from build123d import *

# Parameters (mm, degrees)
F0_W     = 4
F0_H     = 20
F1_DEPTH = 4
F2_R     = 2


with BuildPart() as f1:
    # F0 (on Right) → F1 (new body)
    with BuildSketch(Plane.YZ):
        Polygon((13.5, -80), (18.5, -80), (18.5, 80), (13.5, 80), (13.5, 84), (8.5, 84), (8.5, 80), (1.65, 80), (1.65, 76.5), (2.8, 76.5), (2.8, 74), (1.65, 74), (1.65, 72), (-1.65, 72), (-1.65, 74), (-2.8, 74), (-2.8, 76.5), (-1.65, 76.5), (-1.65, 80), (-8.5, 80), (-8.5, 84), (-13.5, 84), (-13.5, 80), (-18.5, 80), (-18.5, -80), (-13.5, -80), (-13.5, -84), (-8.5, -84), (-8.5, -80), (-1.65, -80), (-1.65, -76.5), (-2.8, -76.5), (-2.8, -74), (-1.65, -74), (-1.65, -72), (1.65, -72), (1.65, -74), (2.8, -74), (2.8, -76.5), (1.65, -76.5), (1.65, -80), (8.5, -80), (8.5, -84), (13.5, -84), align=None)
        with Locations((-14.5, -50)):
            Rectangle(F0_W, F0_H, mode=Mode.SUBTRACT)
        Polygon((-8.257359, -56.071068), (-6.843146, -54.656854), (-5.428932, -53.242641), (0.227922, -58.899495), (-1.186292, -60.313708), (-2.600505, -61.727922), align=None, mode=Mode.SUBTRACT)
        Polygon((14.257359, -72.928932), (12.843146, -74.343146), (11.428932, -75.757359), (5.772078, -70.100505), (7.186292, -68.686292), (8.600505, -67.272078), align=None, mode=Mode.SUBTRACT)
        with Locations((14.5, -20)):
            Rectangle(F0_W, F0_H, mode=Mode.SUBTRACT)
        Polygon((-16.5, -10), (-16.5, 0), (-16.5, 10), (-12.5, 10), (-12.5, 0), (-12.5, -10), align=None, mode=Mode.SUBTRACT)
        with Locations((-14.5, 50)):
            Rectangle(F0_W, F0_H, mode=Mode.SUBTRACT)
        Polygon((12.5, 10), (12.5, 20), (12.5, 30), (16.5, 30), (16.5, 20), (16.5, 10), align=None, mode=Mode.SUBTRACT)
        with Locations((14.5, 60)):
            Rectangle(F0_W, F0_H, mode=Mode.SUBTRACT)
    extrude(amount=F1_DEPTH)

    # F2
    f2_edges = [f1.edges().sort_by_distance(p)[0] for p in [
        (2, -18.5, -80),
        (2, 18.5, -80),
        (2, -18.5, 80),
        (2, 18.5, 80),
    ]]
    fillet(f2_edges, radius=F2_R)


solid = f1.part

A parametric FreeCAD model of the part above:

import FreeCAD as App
import Part
import Sketcher
from FreeCAD import Vector
Q = App.Units.Quantity


def edges_at(feature, points):
    """Names of the edges that pass closest to the given points."""
    edges = feature.Shape.Edges
    near = lambda p: min(range(len(edges)), key=lambda i: edges[i].distToShape(Part.Vertex(*p))[0])
    return sorted({f"Edge{near(p) + 1}" for p in points})


def add_polygon(sketch, points):
    """Adds a closed chain of lines whose ends are joined by coincident constraints."""
    first, n = sketch.GeometryCount, len(points)
    for a, b in zip(points, points[1:] + points[:1]):
        sketch.addGeometry(Part.LineSegment(App.Vector(*a, 0), App.Vector(*b, 0)), False)
    for i in range(n):
        sketch.addConstraint(Sketcher.Constraint("Coincident", first + i, 2, first + (i + 1) % n, 1))

doc = App.newDocument("Part")
params = doc.addObject("Spreadsheet::Sheet", "Params")
for row, (alias, value) in enumerate([
    ("sketch1_width", "5 mm"),
    ("sketch1_width2", "4 mm"),
    ("sketch1_height", "160 mm"),
    ("sketch1_height2", "2 mm"),
    ("sketch1_height3", "20 mm"),
    ("pad1_length", "4 mm"),
    ("fillet_radius", "2 mm"),
], start=1):
    params.set(f"A{row}", alias)
    params.set(f"B{row}", "=" + value)
    params.setAlias(f"B{row}", alias)

body = doc.addObject("PartDesign::Body", "Body")

# Sketch on YZ plane
sketch1 = body.newObject("Sketcher::SketchObject", "Sketch")
sketch1.AttachmentSupport = (doc.getObject("YZ_Plane"), [""])
sketch1.MapMode = "FlatFace"
add_polygon(sketch1, [(13.5, -80), (18.5, -80), (18.5, 80), (13.5, 80), (13.5, 84), (8.5, 84), (8.5, 80), (1.6, 80), (1.6, 76.5), (2.8, 76.5), (2.8, 74), (1.6, 74), (1.6, 72), (-1.6, 72), (-1.6, 74), (-2.8, 74), (-2.8, 76.5), (-1.6, 76.5), (-1.6, 80), (-8.5, 80), (-8.5, 84), (-13.5, 84), (-13.5, 80), (-18.5, 80), (-18.5, -80), (-13.5, -80), (-13.5, -84), (-8.5, -84), (-8.5, -80), (-1.6, -80), (-1.6, -76.5), (-2.8, -76.5), (-2.8, -74), (-1.6, -74), (-1.6, -72), (1.6, -72), (1.6, -74), (2.8, -74), (2.8, -76.5), (1.6, -76.5), (1.6, -80), (8.5, -80), (8.5, -84), (13.5, -84)])  # lines 0-43
add_polygon(sketch1, [(-12.5, -60), (-16.5, -60), (-16.5, -40), (-12.5, -40)])  # lines 44-47
add_polygon(sketch1, [(-2.6, -61.7), (-8.3, -56.1), (-6.8, -54.7), (-5.4, -53.2), (0.2, -58.9), (-1.2, -60.3)])  # lines 48-53
add_polygon(sketch1, [(8.6, -67.3), (14.3, -72.9), (12.8, -74.3), (11.4, -75.8), (5.8, -70.1), (7.2, -68.7)])  # lines 54-59
add_polygon(sketch1, [(16.5, -30), (12.5, -30), (12.5, -10), (16.5, -10)])  # lines 60-63
add_polygon(sketch1, [(-12.5, -10), (-16.5, -10), (-16.5, 10), (-12.5, 10)])  # lines 64-67
add_polygon(sketch1, [(-12.5, 40), (-16.5, 40), (-16.5, 60), (-12.5, 60)])  # lines 68-71
add_polygon(sketch1, [(16.5, 10), (12.5, 10), (12.5, 30), (16.5, 30)])  # lines 72-75
add_polygon(sketch1, [(16.5, 50), (12.5, 50), (12.5, 70), (16.5, 70)])  # lines 76-79
sketch1.addConstraint([
    Sketcher.Constraint("Horizontal", 0),
    Sketcher.Constraint("Vertical", 1),
    Sketcher.Constraint("Horizontal", 2),
    Sketcher.Constraint("Vertical", 3),
    Sketcher.Constraint("Horizontal", 4),
    Sketcher.Constraint("Vertical", 5),
    Sketcher.Constraint("Horizontal", 6),
    Sketcher.Constraint("Vertical", 7),
    Sketcher.Constraint("Horizontal", 8),
    Sketcher.Constraint("Vertical", 9),
    Sketcher.Constraint("Horizontal", 10),
    Sketcher.Constraint("Vertical", 11),
    Sketcher.Constraint("Horizontal", 12),
    Sketcher.Constraint("Vertical", 13),
    Sketcher.Constraint("Horizontal", 14),
    Sketcher.Constraint("Vertical", 15),
    Sketcher.Constraint("Horizontal", 16),
    Sketcher.Constraint("Vertical", 17),
    Sketcher.Constraint("Horizontal", 18),
    Sketcher.Constraint("Vertical", 19),
    Sketcher.Constraint("Horizontal", 20),
    Sketcher.Constraint("Vertical", 21),
    Sketcher.Constraint("Horizontal", 22),
    Sketcher.Constraint("Vertical", 23),
    Sketcher.Constraint("Horizontal", 24),
    Sketcher.Constraint("Vertical", 25),
    Sketcher.Constraint("Horizontal", 26),
    Sketcher.Constraint("Vertical", 27),
    Sketcher.Constraint("Horizontal", 28),
    Sketcher.Constraint("Vertical", 29),
    Sketcher.Constraint("Horizontal", 30),
    Sketcher.Constraint("Vertical", 31),
    Sketcher.Constraint("Horizontal", 32),
    Sketcher.Constraint("Vertical", 33),
    Sketcher.Constraint("Horizontal", 34),
    Sketcher.Constraint("Vertical", 35),
    Sketcher.Constraint("Horizontal", 36),
    Sketcher.Constraint("Vertical", 37),
    Sketcher.Constraint("Horizontal", 38),
    Sketcher.Constraint("Vertical", 39),
    Sketcher.Constraint("Horizontal", 40),
    Sketcher.Constraint("Vertical", 41),
    Sketcher.Constraint("Horizontal", 42),
    Sketcher.Constraint("Vertical", 43),
    Sketcher.Constraint("Horizontal", 44),
    Sketcher.Constraint("Vertical", 45),
    Sketcher.Constraint("Horizontal", 46),
    Sketcher.Constraint("Vertical", 47),
    Sketcher.Constraint("Horizontal", 60),
    Sketcher.Constraint("Vertical", 61),
    Sketcher.Constraint("Horizontal", 62),
    Sketcher.Constraint("Vertical", 63),
    Sketcher.Constraint("Horizontal", 64),
    Sketcher.Constraint("Vertical", 65),
    Sketcher.Constraint("Horizontal", 66),
    Sketcher.Constraint("Vertical", 67),
    Sketcher.Constraint("Horizontal", 68),
    Sketcher.Constraint("Vertical", 69),
    Sketcher.Constraint("Horizontal", 70),
    Sketcher.Constraint("Vertical", 71),
    Sketcher.Constraint("Horizontal", 72),
    Sketcher.Constraint("Vertical", 73),
    Sketcher.Constraint("Horizontal", 74),
    Sketcher.Constraint("Vertical", 75),
    Sketcher.Constraint("Horizontal", 76),
    Sketcher.Constraint("Vertical", 77),
    Sketcher.Constraint("Horizontal", 78),
    Sketcher.Constraint("Vertical", 79),
    Sketcher.Constraint("Symmetric", 0, 2, 22, 2, -1, 1),
    Sketcher.Constraint("Symmetric", 2, 2, 24, 2, -1, 1),
    Sketcher.Constraint("Symmetric", 4, 2, 26, 2, -1, 1),
    Sketcher.Constraint("Symmetric", 6, 2, 28, 2, -1, 1),
    Sketcher.Constraint("Symmetric", 8, 2, 30, 2, -1, 1),
    Sketcher.Constraint("Symmetric", 10, 2, 32, 2, -1, 1),
    Sketcher.Constraint("Symmetric", 12, 2, 34, 2, -1, 1),
    Sketcher.Constraint("Symmetric", 14, 2, 36, 2, -1, 1),
    Sketcher.Constraint("Symmetric", 16, 2, 38, 2, -1, 1),
    Sketcher.Constraint("Symmetric", 18, 2, 40, 2, -1, 1),
    Sketcher.Constraint("Symmetric", 20, 2, 42, 2, -1, 1),
    Sketcher.Constraint("Symmetric", 62, 2, 65, 2, -1, 1),
    Sketcher.Constraint("Symmetric", 67, 2, 72, 2, -1, 1),
    Sketcher.Constraint("Symmetric", 10, 2, 13, 2, -2),
    Sketcher.Constraint("Symmetric", 8, 2, 15, 2, -2),
    Sketcher.Constraint("Symmetric", 6, 2, 17, 2, -2),
    Sketcher.Constraint("Symmetric", 4, 2, 19, 2, -2),
    Sketcher.Constraint("Symmetric", 2, 2, 21, 2, -2),
    Sketcher.Constraint("Symmetric", 61, 2, 67, 2, -2),
    Sketcher.Constraint("Symmetric", 45, 2, 68, 2, -1),
    Sketcher.Constraint("Symmetric", 47, 2, 70, 2, -1),
    Sketcher.Constraint("Symmetric", 63, 2, 74, 2, -1),
    Sketcher.Constraint("Perpendicular", 48, 49),
    Sketcher.Constraint("Parallel", 49, 50),
    Sketcher.Constraint("Perpendicular", 50, 51),
    Sketcher.Constraint("Perpendicular", 51, 52),
    Sketcher.Constraint("Parallel", 52, 53),
    Sketcher.Constraint("Perpendicular", 53, 54),
    Sketcher.Constraint("Perpendicular", 54, 55),
    Sketcher.Constraint("Parallel", 55, 56),
    Sketcher.Constraint("Perpendicular", 56, 57),
    Sketcher.Constraint("Perpendicular", 57, 58),
    Sketcher.Constraint("Parallel", 58, 59),
    Sketcher.Constraint("Horizontal", 2, 2, 5, 2),
    Sketcher.Constraint("Vertical", 7, 2, 10, 2),
    Sketcher.Constraint("Vertical", 45, 2, 64, 2),
    Sketcher.Constraint("Vertical", 47, 2, 66, 2),
    Sketcher.Constraint("Vertical", 73, 2, 76, 2),
    Sketcher.Constraint("Vertical", 75, 2, 78, 2),
    Sketcher.Constraint("Equal", 2, 4),
    Sketcher.Constraint("Equal", 78, 3),
    Sketcher.Constraint("Equal", 47, 61),
    Sketcher.Constraint("Equal", 63, 65),
    Sketcher.Constraint("Equal", 75, 77),
    Sketcher.Constraint("Equal", 49, 50),
    Sketcher.Constraint("Equal", 50, 52),
    Sketcher.Constraint("Equal", 51, 54),
    Sketcher.Constraint("Equal", 53, 55),
    Sketcher.Constraint("Equal", 55, 56),
    Sketcher.Constraint("Equal", 56, 58),
    Sketcher.Constraint("DistanceX", 0, 1, 0, 2, 5.0),
    Sketcher.Constraint("DistanceX", 44, 2, 44, 1, 4.0),
    Sketcher.Constraint("DistanceY", 1, 1, 1, 2, 160.0),
    Sketcher.Constraint("DistanceY", 11, 2, 11, 1, 2.0),
    Sketcher.Constraint("DistanceY", 45, 1, 45, 2, 20.0),
    Sketcher.Constraint("Angle", 48, Q("135 deg")),
    Sketcher.Constraint("Distance", 48, 8.0),
    Sketcher.Constraint("Distance", 49, 2.0),
    Sketcher.Constraint("DistanceX", 12, 2, 12, 1, 3.3),
    Sketcher.Constraint("DistanceY", 7, 2, 7, 1, 3.5),
    Sketcher.Constraint("DistanceY", 9, 2, 9, 1, 2.5),
    Sketcher.Constraint("DistanceY", 44, 2, -1, 1, 60.0),
    Sketcher.Constraint("DistanceY", -1, 1, 76, 2, 50.0),
    Sketcher.Constraint("DistanceX", 6, 2, 6, 1, 6.85),
    Sketcher.Constraint("DistanceX", 8, 1, 8, 2, 1.15),
    Sketcher.Constraint("DistanceX", 44, 2, -1, 1, 16.5),
    Sketcher.Constraint("DistanceX", 48, 2, -1, 1, 8.257359),
    Sketcher.Constraint("DistanceY", 50, 2, -1, 1, 53.242641),
    Sketcher.Constraint("DistanceX", -1, 1, 54, 2, 14.257359),
    Sketcher.Constraint("DistanceY", 56, 2, -1, 1, 75.757359),
])
sketch1.setExpression("Constraints[198]", "Params.sketch1_width")
sketch1.setExpression("Constraints[199]", "Params.sketch1_width2")
sketch1.setExpression("Constraints[200]", "Params.sketch1_height")
sketch1.setExpression("Constraints[201]", "Params.sketch1_height2")
sketch1.setExpression("Constraints[202]", "Params.sketch1_height3")
pad1 = body.newObject("PartDesign::Pad", "Pad")
pad1.Profile = sketch1
pad1.setExpression("Length", "Params.pad1_length")
doc.recompute()

fillet = body.newObject("PartDesign::Fillet", "Fillet")
fillet.Base = (pad1, edges_at(pad1, [
    (2, -18.5, -80),
    (2, 18.5, -80),
    (2, -18.5, 80),
    (2, 18.5, 80),
]))
fillet.setExpression("Radius", "Params.fillet_radius")

doc.recompute()
